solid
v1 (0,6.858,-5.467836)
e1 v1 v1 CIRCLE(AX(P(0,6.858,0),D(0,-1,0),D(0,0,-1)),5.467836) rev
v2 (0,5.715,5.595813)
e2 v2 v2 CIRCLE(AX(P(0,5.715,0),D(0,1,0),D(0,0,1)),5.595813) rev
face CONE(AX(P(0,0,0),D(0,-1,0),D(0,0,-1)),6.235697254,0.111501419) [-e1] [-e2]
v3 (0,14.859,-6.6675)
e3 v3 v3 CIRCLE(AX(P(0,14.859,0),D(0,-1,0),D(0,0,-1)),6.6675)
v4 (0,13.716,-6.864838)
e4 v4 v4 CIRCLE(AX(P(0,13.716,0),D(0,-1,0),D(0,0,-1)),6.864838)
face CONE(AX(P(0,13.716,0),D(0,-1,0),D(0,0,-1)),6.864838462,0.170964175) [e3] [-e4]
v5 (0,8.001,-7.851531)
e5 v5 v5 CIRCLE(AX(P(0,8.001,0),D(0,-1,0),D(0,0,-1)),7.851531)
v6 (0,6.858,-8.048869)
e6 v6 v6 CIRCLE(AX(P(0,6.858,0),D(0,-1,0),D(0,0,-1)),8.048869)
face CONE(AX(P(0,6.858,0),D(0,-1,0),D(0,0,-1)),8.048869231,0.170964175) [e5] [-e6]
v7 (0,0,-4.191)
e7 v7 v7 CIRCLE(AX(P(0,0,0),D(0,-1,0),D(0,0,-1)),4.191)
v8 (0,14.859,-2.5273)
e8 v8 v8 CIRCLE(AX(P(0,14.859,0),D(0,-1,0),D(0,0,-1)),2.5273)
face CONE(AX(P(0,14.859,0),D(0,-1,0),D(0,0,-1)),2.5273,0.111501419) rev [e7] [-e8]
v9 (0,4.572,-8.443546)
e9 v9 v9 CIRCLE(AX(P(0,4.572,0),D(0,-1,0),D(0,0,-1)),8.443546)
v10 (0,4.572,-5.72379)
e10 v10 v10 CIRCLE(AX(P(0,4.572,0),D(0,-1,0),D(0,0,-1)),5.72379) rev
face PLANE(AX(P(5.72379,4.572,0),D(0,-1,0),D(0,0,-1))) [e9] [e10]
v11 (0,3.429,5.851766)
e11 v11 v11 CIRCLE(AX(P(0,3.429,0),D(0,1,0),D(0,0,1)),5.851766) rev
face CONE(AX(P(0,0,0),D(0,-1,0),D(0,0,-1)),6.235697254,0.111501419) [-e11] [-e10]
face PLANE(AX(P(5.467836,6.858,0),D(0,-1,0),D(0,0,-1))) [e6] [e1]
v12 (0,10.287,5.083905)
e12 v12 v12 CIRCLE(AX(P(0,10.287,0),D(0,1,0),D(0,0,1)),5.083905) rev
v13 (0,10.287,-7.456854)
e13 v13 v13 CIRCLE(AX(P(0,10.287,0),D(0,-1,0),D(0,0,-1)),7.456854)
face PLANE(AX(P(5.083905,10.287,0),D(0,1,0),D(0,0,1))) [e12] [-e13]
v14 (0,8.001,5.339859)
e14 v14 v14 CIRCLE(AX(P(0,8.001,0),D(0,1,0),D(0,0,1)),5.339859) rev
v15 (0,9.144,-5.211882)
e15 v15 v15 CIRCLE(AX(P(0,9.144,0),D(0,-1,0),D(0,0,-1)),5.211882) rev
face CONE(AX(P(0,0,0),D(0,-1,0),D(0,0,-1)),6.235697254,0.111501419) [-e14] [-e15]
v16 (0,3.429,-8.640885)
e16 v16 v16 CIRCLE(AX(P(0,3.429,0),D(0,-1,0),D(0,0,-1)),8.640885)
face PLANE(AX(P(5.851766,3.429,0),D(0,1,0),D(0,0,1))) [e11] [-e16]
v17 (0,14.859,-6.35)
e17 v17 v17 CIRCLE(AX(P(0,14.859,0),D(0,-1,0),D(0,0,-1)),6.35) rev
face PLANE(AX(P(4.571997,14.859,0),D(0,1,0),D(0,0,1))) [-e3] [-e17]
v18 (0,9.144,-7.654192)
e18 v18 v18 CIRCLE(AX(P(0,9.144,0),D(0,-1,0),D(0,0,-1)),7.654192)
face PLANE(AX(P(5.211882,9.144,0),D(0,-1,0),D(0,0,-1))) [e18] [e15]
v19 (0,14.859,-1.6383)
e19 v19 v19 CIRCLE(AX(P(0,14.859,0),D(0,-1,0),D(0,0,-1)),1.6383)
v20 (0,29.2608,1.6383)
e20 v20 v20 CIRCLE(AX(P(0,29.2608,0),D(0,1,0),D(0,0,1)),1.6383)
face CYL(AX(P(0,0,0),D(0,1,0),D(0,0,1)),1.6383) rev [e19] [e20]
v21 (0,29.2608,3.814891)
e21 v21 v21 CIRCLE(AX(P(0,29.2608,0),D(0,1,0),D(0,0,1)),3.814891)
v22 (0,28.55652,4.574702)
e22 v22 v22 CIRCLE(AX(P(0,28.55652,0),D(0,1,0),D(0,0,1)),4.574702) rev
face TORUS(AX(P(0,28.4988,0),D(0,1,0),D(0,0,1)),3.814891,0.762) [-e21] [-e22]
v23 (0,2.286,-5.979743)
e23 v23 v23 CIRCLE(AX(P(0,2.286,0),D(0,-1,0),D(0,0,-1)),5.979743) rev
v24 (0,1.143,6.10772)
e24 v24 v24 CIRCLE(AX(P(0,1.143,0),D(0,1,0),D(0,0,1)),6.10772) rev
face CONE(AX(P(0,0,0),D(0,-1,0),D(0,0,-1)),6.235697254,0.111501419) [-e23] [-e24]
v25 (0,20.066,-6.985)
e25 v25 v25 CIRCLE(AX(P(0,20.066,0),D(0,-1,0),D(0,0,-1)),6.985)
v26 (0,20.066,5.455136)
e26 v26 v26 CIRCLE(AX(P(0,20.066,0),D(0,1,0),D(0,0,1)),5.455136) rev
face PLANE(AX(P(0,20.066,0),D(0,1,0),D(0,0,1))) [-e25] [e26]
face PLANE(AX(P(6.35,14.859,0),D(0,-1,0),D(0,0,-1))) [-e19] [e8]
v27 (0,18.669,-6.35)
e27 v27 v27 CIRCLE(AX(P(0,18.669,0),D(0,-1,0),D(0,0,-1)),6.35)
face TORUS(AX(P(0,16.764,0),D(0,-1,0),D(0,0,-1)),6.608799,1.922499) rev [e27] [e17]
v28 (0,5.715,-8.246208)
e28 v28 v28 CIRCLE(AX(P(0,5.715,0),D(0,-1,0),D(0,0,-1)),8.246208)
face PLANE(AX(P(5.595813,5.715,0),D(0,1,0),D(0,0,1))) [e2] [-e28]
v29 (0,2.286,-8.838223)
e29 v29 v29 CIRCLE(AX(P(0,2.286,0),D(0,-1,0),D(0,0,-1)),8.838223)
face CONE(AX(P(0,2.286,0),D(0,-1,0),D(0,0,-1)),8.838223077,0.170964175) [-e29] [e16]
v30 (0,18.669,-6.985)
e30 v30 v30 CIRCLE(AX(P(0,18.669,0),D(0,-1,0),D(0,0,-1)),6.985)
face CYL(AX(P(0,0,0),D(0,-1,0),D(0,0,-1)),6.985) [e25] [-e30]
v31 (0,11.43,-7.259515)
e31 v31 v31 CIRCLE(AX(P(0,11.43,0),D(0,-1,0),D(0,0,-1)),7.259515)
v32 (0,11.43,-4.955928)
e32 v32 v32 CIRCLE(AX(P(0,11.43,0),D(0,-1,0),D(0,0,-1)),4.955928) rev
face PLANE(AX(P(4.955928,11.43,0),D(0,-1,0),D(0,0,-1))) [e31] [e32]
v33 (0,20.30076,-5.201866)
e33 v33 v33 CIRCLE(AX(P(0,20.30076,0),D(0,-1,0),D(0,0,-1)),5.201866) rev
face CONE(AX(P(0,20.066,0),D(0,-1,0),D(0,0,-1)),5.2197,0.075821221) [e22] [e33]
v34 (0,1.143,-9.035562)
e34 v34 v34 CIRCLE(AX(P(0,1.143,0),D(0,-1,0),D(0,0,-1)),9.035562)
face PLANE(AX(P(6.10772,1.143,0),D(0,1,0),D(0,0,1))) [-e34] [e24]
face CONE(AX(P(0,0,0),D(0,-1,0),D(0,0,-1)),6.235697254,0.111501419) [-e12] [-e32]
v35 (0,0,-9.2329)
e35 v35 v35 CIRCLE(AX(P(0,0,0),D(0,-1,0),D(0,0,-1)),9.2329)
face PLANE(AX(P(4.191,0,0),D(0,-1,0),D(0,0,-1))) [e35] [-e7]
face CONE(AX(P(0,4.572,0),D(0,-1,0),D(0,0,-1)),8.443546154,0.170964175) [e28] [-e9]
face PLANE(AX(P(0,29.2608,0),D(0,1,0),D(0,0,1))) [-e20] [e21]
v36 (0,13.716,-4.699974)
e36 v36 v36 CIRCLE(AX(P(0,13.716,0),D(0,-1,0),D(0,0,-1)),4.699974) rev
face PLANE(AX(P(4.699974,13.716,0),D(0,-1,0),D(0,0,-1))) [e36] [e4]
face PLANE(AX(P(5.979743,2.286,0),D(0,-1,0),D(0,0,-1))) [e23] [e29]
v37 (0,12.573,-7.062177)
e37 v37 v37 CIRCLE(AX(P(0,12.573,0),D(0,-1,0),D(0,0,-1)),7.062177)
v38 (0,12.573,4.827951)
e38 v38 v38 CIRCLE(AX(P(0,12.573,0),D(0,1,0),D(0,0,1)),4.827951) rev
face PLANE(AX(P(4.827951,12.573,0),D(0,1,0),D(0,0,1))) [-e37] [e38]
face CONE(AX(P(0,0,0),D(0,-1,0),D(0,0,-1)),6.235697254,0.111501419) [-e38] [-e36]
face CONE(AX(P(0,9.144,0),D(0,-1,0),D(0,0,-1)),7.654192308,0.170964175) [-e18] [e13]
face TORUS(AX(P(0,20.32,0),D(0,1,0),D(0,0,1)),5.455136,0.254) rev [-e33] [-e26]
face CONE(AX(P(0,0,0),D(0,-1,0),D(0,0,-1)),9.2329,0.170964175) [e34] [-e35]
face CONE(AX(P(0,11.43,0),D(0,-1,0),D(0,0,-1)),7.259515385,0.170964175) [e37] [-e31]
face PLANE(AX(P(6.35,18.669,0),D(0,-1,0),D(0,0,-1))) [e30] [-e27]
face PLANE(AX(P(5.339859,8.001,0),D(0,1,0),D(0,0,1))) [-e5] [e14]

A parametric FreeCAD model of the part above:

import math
import FreeCAD as App
import Part
import Sketcher
Q = App.Units.Quantity


def edges_at(feature, points):
    """Names of the edges that pass closest to the given points."""
    edges = feature.Shape.Edges
    near = lambda p: min(range(len(edges)), key=lambda i: edges[i].distToShape(Part.Vertex(*p))[0])
    return sorted({f"Edge{near(p) + 1}" for p in points})


def add_polygon(sketch, points):
    """Adds a closed chain of lines whose ends are joined by coincident constraints."""
    first, n = sketch.GeometryCount, len(points)
    for a, b in zip(points, points[1:] + points[:1]):
        sketch.addGeometry(Part.LineSegment(App.Vector(*a, 0), App.Vector(*b, 0)), False)
    for i in range(n):
        sketch.addConstraint(Sketcher.Constraint("Coincident", first + i, 2, first + (i + 1) % n, 1))

doc = App.newDocument("Part")
params = doc.addObject("Spreadsheet::Sheet", "Params")
for row, (alias, value) in enumerate([
    ("revolution_angle", "360 deg"),
    ("sketch2_width", "0.1180001 in"),
    ("revolution2_angle", "360 deg"),
    ("sketch3_width", "0.25 in"),
    ("sketch3_width2", "0.025 in"),
    ("sketch3_height", "0.055 in"),
    ("sketch3_height2", "0.205 in"),
    ("revolution3_angle", "360 deg"),
    ("sketch4_width", "0.178 in"),
    ("sketch4_height", "0.362 in"),
    ("revolution4_angle", "360 deg"),
    ("sketch5_diameter", "0.129 in"),
    ("fillet_radius", "0.03 in"),
    ("fillet2_radius", "0.01 in"),
], start=1):
    params.set(f"A{row}", alias)
    params.set(f"B{row}", "=" + value)
    params.setAlias(f"B{row}", alias)

body = doc.addObject("PartDesign::Body", "Body")

# Sketch on XY plane
sketch1 = body.newObject("Sketcher::SketchObject", "Sketch")
sketch1.AttachmentSupport = (doc.getObject("XY_Plane"), [""])
sketch1.MapMode = "FlatFace"
add_polygon(sketch1, [(6.2, 0), (4.6, 14.9), (2.5, 14.9), (4.2, 0)])  # lines 0-3
sketch1.addConstraint([
    Sketcher.Constraint("Horizontal", 1),
    Sketcher.Constraint("Horizontal", 3),
    Sketcher.Constraint("PointOnObject", 2, 2, -1),
    Sketcher.Constraint("Parallel", 0, 2),
    Sketcher.Constraint("DistanceX", -1, 1, 0, 2, Q("0.1799999 in")),
    Sketcher.Constraint("DistanceX", 1, 2, 1, 1, Q("0.0804999 in")),
    Sketcher.Constraint("DistanceY", -1, 1, 0, 2, Q("0.585 in")),
    Sketcher.Constraint("DistanceX", -1, 1, 2, 2, Q("0.165 in")),
])
revolution = body.newObject("PartDesign::Revolution", "Revolution")
revolution.Profile = sketch1
revolution.ReferenceAxis = (sketch1, ["V_Axis"])
revolution.setExpression("Angle", "Params.revolution_angle")

# Sketch on XY plane
sketch2 = body.newObject("Sketcher::SketchObject", "Sketch001")
sketch2.AttachmentSupport = (doc.getObject("XY_Plane"), [""])
sketch2.MapMode = "FlatFace"
add_polygon(sketch2, [(6.2, 0), (9.2, 0), (9, 1.1), (6.1, 1.1)])  # lines 0-3
add_polygon(sketch2, [(4.6, 14.9), (4.7, 13.7), (6.9, 13.7), (6.7, 14.9)])  # lines 4-7
add_polygon(sketch2, [(6, 2.3), (8.8, 2.3), (8.6, 3.4), (5.9, 3.4)])  # lines 8-11
add_polygon(sketch2, [(5.7, 4.6), (8.4, 4.6), (8.2, 5.7), (5.6, 5.7)])  # lines 12-15
add_polygon(sketch2, [(5.5, 6.9), (8, 6.9), (7.9, 8), (5.3, 8)])  # lines 16-19
add_polygon(sketch2, [(5.2, 9.1), (7.7, 9.1), (7.5, 10.3), (5.1, 10.3)])  # lines 20-23
add_polygon(sketch2, [(5, 11.4), (7.3, 11.4), (7.1, 12.6), (4.8, 12.6)])  # lines 24-27
sketch2.addConstraint([
    Sketcher.Constraint("Horizontal", 0),
    Sketcher.Constraint("Horizontal", 2),
    Sketcher.Constraint("Horizontal", 5),
    Sketcher.Constraint("Horizontal", 7),
    Sketcher.Constraint("Horizontal", 8),
    Sketcher.Constraint("Horizontal", 10),
    Sketcher.Constraint("Horizontal", 12),
    Sketcher.Constraint("Horizontal", 14),
    Sketcher.Constraint("Horizontal", 16),
    Sketcher.Constraint("Horizontal", 18),
    Sketcher.Constraint("Horizontal", 20),
    Sketcher.Constraint("Horizontal", 22),
    Sketcher.Constraint("Horizontal", 24),
    Sketcher.Constraint("Horizontal", 26),
    Sketcher.Constraint("PointOnObject", 0, 2, -1),
    Sketcher.Constraint("Parallel", 3, 4),
    Sketcher.Constraint("Parallel", 1, 6),
    Sketcher.Constraint("Parallel", 6, 9),
    Sketcher.Constraint("Parallel", 4, 11),
    Sketcher.Constraint("Parallel", 9, 13),
    Sketcher.Constraint("Parallel", 11, 15),
    Sketcher.Constraint("Parallel", 13, 17),
    Sketcher.Constraint("Parallel", 15, 19),
    Sketcher.Constraint("Parallel", 17, 21),
    Sketcher.Constraint("Parallel", 19, 23),
    Sketcher.Constraint("Parallel", 21, 25),
    Sketcher.Constraint("Parallel", 23, 27),
    Sketcher.Constraint("Equal", 3, 4),
    Sketcher.Constraint("Equal", 6, 9),
    Sketcher.Constraint("Equal", 9, 13),
    Sketcher.Constraint("Equal", 13, 17),
    Sketcher.Constraint("Equal", 17, 21),
    Sketcher.Constraint("Equal", 21, 25),
    Sketcher.Constraint("DistanceX", 0, 1, 0, 2, Q("0.1180001 in")),
    Sketcher.Constraint("DistanceY", -1, 1, 4, 2, Q("0.54 in")),
    Sketcher.Constraint("DistanceX", -1, 1, 7, 2, Q("0.1799999 in")),
    Sketcher.Constraint("DistanceY", -1, 1, 8, 2, Q("0.09 in")),
    Sketcher.Constraint("DistanceY", -1, 1, 12, 2, Q("0.18 in")),
    Sketcher.Constraint("DistanceY", -1, 1, 16, 2, Q("0.27 in")),
    Sketcher.Constraint("DistanceY", -1, 1, 20, 2, Q("0.36 in")),
    Sketcher.Constraint("DistanceY", -1, 1, 24, 2, Q("0.45 in")),
    Sketcher.Constraint("DistanceX", 7, 2, 7, 1, Q("0.0825001 in")),
    Sketcher.Constraint("DistanceY", -1, 1, 1, 2, Q("0.045 in")),
    Sketcher.Constraint("DistanceX", 3, 2, 6, 2, Q("0.0170001 in")),
    Sketcher.Constraint("DistanceX", 11, 2, 12, 2, Q("0.0970001 in")),
    Sketcher.Constraint("DistanceX", 4, 2, 25, 2, Q("0.0930001 in")),
    Sketcher.Constraint("DistanceX", 2, 2, 8, 2, Q("0.1075001 in")),
    Sketcher.Constraint("DistanceX", 2, 2, 2, 1, 2.927841),
    Sketcher.Constraint("DistanceX", 8, 1, 8, 2, 2.85848),
    Sketcher.Constraint("DistanceX", 18, 2, 18, 1, 2.511672),
    Sketcher.Constraint("DistanceX", 20, 1, 20, 2, 2.44231),
    Sketcher.Constraint("Distance", 1, 1.15991),
    Sketcher.Constraint("DistanceX", 12, 1, 12, 2, 2.719757),
    Sketcher.Constraint("DistanceX", 24, 1, 24, 2, 2.303587),
    Sketcher.Constraint("DistanceX", -1, 1, 16, 2, 8.048869),
    Sketcher.Constraint("DistanceX", -1, 1, 23, 2, 5.211882),
])
sketch2.setExpression("Constraints[61]", "Params.sketch2_width")
revolution2 = body.newObject("PartDesign::Revolution", "Revolution001")
revolution2.Profile = sketch2
revolution2.ReferenceAxis = (sketch2, ["V_Axis"])
revolution2.setExpression("Angle", "Params.revolution2_angle")

# Sketch on XY plane
sketch3 = body.newObject("Sketcher::SketchObject", "Sketch002")
sketch3.AttachmentSupport = (doc.getObject("XY_Plane"), [""])
sketch3.MapMode = "FlatFace"
sketch3.addGeometry([
    Part.LineSegment(App.Vector(0, 14.9, 0), App.Vector(6.3, 14.9, 0)),  # 0
    Part.ArcOfCircle(Part.Circle(App.Vector(6.6, 16.8, 0), App.Vector(0, 0, 1), 1.9), math.radians(98), math.radians(262)),  # 1
    Part.LineSegment(App.Vector(6.3, 18.7, 0), App.Vector(7, 18.7, 0)),  # 2
    Part.LineSegment(App.Vector(7, 18.7, 0), App.Vector(7, 20.1, 0)),  # 3
    Part.LineSegment(App.Vector(7, 20.1, 0), App.Vector(0, 20.1, 0)),  # 4
    Part.LineSegment(App.Vector(0, 20.1, 0), App.Vector(0, 14.9, 0)),  # 5
], False)
sketch3.addConstraint([
    Sketcher.Constraint("Coincident", 0, 2, 1, 2),
    Sketcher.Constraint("Coincident", 1, 1, 2, 1),
    Sketcher.Constraint("Coincident", 2, 2, 3, 1),
    Sketcher.Constraint("Coincident", 3, 2, 4, 1),
    Sketcher.Constraint("Coincident", 4, 2, 5, 1),
    Sketcher.Constraint("Coincident", 5, 2, 0, 1),
    Sketcher.Constraint("Horizontal", 0),
    Sketcher.Constraint("Horizontal", 2),
    Sketcher.Constraint("Vertical", 3),
    Sketcher.Constraint("Horizontal", 4),
    Sketcher.Constraint("Vertical", 5),
    Sketcher.Constraint("PointOnObject", 4, 2, -2),
    Sketcher.Constraint("Vertical", 0, 2, 1, 1),
    Sketcher.Constraint("DistanceX", 0, 1, 0, 2, Q("0.25 in")),
    Sketcher.Constraint("DistanceX", 2, 1, 2, 2, Q("0.025 in")),
    Sketcher.Constraint("DistanceY", 3, 1, 3, 2, Q("0.055 in")),
    Sketcher.Constraint("DistanceY", 5, 2, 5, 1, Q("0.205 in")),
    Sketcher.Constraint("DistanceY", -1, 1, 1, 3, Q("0.66 in")),
    Sketcher.Constraint("Radius", 1, 1.922499),
])
sketch3.setExpression("Constraints[13]", "Params.sketch3_width")
sketch3.setExpression("Constraints[14]", "Params.sketch3_width2")
sketch3.setExpression("Constraints[15]", "Params.sketch3_height")
sketch3.setExpression("Constraints[16]", "Params.sketch3_height2")
revolution3 = body.newObject("PartDesign::Revolution", "Revolution002")
revolution3.Profile = sketch3
revolution3.ReferenceAxis = (sketch3, ["V_Axis"])
revolution3.setExpression("Angle", "Params.revolution3_angle")

# Sketch on XY plane
sketch4 = body.newObject("Sketcher::SketchObject", "Sketch003")
sketch4.AttachmentSupport = (doc.getObject("XY_Plane"), [""])
sketch4.MapMode = "FlatFace"
add_polygon(sketch4, [(0, 20.1), (5.2, 20.1), (4.5, 29.3), (0, 29.3)])  # lines 0-3
sketch4.addConstraint([
    Sketcher.Constraint("Horizontal", 0),
    Sketcher.Constraint("Horizontal", 2),
    Sketcher.Constraint("Vertical", 3),
    Sketcher.Constraint("PointOnObject", 2, 2, -2),
    Sketcher.Constraint("DistanceX", 2, 2, 2, 1, Q("0.178 in")),
    Sketcher.Constraint("DistanceY", 3, 2, 3, 1, Q("0.362 in")),
    Sketcher.Constraint("DistanceY", -1, 1, 0, 2, Q("0.79 in")),
    Sketcher.Constraint("DistanceX", 0, 1, 0, 2, Q("0.2055 in")),
])
sketch4.setExpression("Constraints[8]", "Params.sketch4_width")
sketch4.setExpression("Constraints[9]", "Params.sketch4_height")
revolution4 = body.newObject("PartDesign::Revolution", "Revolution003")
revolution4.Profile = sketch4
revolution4.ReferenceAxis = (sketch4, ["V_Axis"])
revolution4.setExpression("Angle", "Params.revolution4_angle")

# Sketch on XZ plane
sketch5 = body.newObject("Sketcher::SketchObject", "Sketch004")
sketch5.AttachmentSupport = (doc.getObject("XZ_Plane"), [""])
sketch5.MapMode = "FlatFace"
sketch5.AttachmentOffset = App.Placement(App.Vector(0, 0, -1.152 * 25.4), App.Rotation())
sketch5.addGeometry(Part.Circle(App.Vector(0, 0, 0), App.Vector(0, 0, 1), 1.6), False)
sketch5.addConstraint([
    Sketcher.Constraint("Coincident", 0, 3, -1, 1),
    Sketcher.Constraint("Diameter", 0, Q("0.129 in")),
])
sketch5.setExpression("Constraints[1]", "Params.sketch5_diameter")
pocket1 = body.newObject("PartDesign::Pocket", "Pocket")
pocket1.Profile = sketch5
pocket1.Type = "ThroughAll"
pocket1.Reversed = True
doc.recompute()

fillet = body.newObject("PartDesign::Fillet", "Fillet")
fillet.Base = (pocket1, edges_at(pocket1, [(0, 29.261, 4.521)]))
fillet.setExpression("Radius", "Params.fillet_radius")
doc.recompute()

fillet2 = body.newObject("PartDesign::Fillet", "Fillet001")
fillet2.Base = (fillet, edges_at(fillet, [(0, 20.066, 5.22)]))
fillet2.setExpression("Radius", "Params.fillet2_radius")

doc.recompute()
